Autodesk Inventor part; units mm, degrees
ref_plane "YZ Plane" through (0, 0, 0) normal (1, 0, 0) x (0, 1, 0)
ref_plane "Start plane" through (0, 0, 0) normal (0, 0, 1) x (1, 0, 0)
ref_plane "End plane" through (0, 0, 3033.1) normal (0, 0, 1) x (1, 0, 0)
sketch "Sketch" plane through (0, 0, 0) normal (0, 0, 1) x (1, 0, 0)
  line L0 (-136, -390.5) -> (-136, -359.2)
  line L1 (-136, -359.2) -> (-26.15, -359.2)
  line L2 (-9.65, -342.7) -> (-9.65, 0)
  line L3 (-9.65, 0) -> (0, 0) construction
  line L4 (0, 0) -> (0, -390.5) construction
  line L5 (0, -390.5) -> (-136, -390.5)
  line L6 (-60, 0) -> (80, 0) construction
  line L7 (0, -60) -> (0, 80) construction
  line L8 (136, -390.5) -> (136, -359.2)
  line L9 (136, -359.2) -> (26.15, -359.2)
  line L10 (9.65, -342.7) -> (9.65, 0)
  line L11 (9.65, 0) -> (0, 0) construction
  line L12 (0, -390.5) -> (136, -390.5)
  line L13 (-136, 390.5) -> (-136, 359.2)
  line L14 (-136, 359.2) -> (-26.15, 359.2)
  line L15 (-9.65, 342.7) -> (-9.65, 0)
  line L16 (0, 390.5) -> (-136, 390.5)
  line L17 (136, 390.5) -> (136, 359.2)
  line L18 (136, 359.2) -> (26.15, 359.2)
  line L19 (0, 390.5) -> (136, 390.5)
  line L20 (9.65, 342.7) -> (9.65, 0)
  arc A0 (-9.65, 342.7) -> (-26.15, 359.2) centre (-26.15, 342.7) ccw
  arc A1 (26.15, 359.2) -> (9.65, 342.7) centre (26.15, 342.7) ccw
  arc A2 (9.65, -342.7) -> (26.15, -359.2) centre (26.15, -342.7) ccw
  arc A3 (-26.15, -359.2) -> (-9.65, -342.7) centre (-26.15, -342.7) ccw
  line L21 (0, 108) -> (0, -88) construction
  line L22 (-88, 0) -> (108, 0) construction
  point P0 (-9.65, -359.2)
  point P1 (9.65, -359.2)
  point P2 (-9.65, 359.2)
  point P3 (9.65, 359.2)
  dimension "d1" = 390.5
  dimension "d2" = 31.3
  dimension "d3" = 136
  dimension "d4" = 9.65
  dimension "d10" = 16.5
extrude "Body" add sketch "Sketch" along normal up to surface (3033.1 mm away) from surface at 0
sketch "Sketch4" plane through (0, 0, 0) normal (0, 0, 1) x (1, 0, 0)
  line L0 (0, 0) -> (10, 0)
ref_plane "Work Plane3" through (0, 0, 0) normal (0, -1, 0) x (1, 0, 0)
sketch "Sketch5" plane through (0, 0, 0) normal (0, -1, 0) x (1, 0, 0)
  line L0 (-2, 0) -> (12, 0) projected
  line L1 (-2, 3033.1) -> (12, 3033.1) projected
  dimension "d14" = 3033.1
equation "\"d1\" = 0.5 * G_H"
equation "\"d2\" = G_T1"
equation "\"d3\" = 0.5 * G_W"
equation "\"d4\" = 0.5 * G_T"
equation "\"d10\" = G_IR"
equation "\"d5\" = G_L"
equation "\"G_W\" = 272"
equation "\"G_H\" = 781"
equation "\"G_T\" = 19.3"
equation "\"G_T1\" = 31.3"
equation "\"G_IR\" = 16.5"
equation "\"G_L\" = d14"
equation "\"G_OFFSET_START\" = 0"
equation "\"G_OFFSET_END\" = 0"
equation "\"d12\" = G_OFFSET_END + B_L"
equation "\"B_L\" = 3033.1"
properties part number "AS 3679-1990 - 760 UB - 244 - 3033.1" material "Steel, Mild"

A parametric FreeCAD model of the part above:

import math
import FreeCAD as App
import Part
import Sketcher

V = App.Vector
Q = App.Units.Quantity

doc = App.newDocument("Part")
body = doc.addObject("PartDesign::Body", "Body")

# Sketch on XY plane
sketch1 = body.newObject("Sketcher::SketchObject", "Sketch")
sketch1.AttachmentSupport = (doc.getObject("XY_Plane"), [""])
sketch1.MapMode = "FlatFace"
sketch1.addGeometry(Part.LineSegment(V(-136, -359, 0), V(-136, -390, 0)), False)
sketch1.addGeometry(Part.LineSegment(V(-136, -390, 0), V(136, -390, 0)), False)
sketch1.addGeometry(Part.LineSegment(V(136, -390, 0), V(136, -359, 0)), False)
sketch1.addGeometry(Part.LineSegment(V(136, -359, 0), V(26, -359, 0)), False)
sketch1.addGeometry(Part.ArcOfCircle(Part.Circle(V(26, -343, 0), V(0, 0, 1), 16), math.radians(180), math.radians(270)), False)
sketch1.addGeometry(Part.LineSegment(V(10, -343, 0), V(10, 343, 0)), False)
sketch1.addGeometry(Part.ArcOfCircle(Part.Circle(V(26, 343, 0), V(0, 0, 1), 16), math.radians(90), math.radians(180)), False)
sketch1.addGeometry(Part.LineSegment(V(26, 359, 0), V(136, 359, 0)), False)
sketch1.addGeometry(Part.LineSegment(V(136, 359, 0), V(136, 390, 0)), False)
sketch1.addGeometry(Part.LineSegment(V(136, 390, 0), V(-136, 390, 0)), False)
sketch1.addGeometry(Part.LineSegment(V(-136, 390, 0), V(-136, 359, 0)), False)
sketch1.addGeometry(Part.LineSegment(V(-136, 359, 0), V(-26, 359, 0)), False)
sketch1.addGeometry(Part.ArcOfCircle(Part.Circle(V(-26, 343, 0), V(0, 0, 1), 16), math.radians(0), math.radians(90)), False)
sketch1.addGeometry(Part.LineSegment(V(-10, 343, 0), V(-10, -343, 0)), False)
sketch1.addGeometry(Part.ArcOfCircle(Part.Circle(V(-26, -343, 0), V(0, 0, 1), 16), math.radians(-90), math.radians(0)), False)
sketch1.addGeometry(Part.LineSegment(V(-26, -359, 0), V(-136, -359, 0)), False)
sketch1.addConstraint(Sketcher.Constraint("Coincident", 0, 2, 1, 1))
sketch1.addConstraint(Sketcher.Constraint("Coincident", 1, 2, 2, 1))
sketch1.addConstraint(Sketcher.Constraint("Coincident", 2, 2, 3, 1))
sketch1.addConstraint(Sketcher.Constraint("Tangent", 3, 2, 4, 2))
sketch1.addConstraint(Sketcher.Constraint("Tangent", 4, 1, 5, 1))
sketch1.addConstraint(Sketcher.Constraint("Tangent", 5, 2, 6, 2))
sketch1.addConstraint(Sketcher.Constraint("Tangent", 6, 1, 7, 1))
sketch1.addConstraint(Sketcher.Constraint("Coincident", 7, 2, 8, 1))
sketch1.addConstraint(Sketcher.Constraint("Coincident", 8, 2, 9, 1))
sketch1.addConstraint(Sketcher.Constraint("Coincident", 9, 2, 10, 1))
sketch1.addConstraint(Sketcher.Constraint("Coincident", 10, 2, 11, 1))
sketch1.addConstraint(Sketcher.Constraint("Tangent", 11, 2, 12, 2))
sketch1.addConstraint(Sketcher.Constraint("Tangent", 12, 1, 13, 1))
sketch1.addConstraint(Sketcher.Constraint("Tangent", 13, 2, 14, 2))
sketch1.addConstraint(Sketcher.Constraint("Tangent", 14, 1, 15, 1))
sketch1.addConstraint(Sketcher.Constraint("Coincident", 15, 2, 0, 1))
sketch1.addConstraint(Sketcher.Constraint("Vertical", 0))
sketch1.addConstraint(Sketcher.Constraint("Horizontal", 1))
sketch1.addConstraint(Sketcher.Constraint("Vertical", 2))
sketch1.addConstraint(Sketcher.Constraint("Horizontal", 3))
sketch1.addConstraint(Sketcher.Constraint("Vertical", 5))
sketch1.addConstraint(Sketcher.Constraint("Horizontal", 7))
sketch1.addConstraint(Sketcher.Constraint("Vertical", 8))
sketch1.addConstraint(Sketcher.Constraint("Horizontal", 9))
sketch1.addConstraint(Sketcher.Constraint("Vertical", 10))
sketch1.addConstraint(Sketcher.Constraint("Horizontal", 11))
sketch1.addConstraint(Sketcher.Constraint("Vertical", 13))
sketch1.addConstraint(Sketcher.Constraint("Horizontal", 15))
sketch1.addConstraint(Sketcher.Constraint("Equal", 4, 6))
sketch1.addConstraint(Sketcher.Constraint("Equal", 6, 12))
sketch1.addConstraint(Sketcher.Constraint("Equal", 12, 14))
sketch1.addConstraint(Sketcher.Constraint("Symmetric", 4, 3, 12, 3, -1, 1))
sketch1.addConstraint(Sketcher.Constraint("Symmetric", 0, 2, 8, 2, -1, 1))
sketch1.addConstraint(Sketcher.Constraint("Symmetric", 7, 2, 10, 2, -2))
sketch1.addConstraint(Sketcher.Constraint("Symmetric", 2, 2, 15, 2, -2))
sketch1.addConstraint(Sketcher.Constraint("Radius", 4, Q("16.5 mm")))
sketch1.addConstraint(Sketcher.Constraint("DistanceY", 0, 2, 0, 1, Q("31.3 mm")))
sketch1.addConstraint(Sketcher.Constraint("DistanceX", 0, 2, -1, 1, Q("136 mm")))
sketch1.addConstraint(Sketcher.Constraint("DistanceY", 0, 2, -1, 1, Q("390.5 mm")))
sketch1.addConstraint(Sketcher.Constraint("DistanceX", -1, 1, 4, 1, Q("9.65 mm")))
pad1 = body.newObject("PartDesign::Pad", "Pad")
pad1.Profile = sketch1
pad1.Length = 3033.1

doc.recompute()
